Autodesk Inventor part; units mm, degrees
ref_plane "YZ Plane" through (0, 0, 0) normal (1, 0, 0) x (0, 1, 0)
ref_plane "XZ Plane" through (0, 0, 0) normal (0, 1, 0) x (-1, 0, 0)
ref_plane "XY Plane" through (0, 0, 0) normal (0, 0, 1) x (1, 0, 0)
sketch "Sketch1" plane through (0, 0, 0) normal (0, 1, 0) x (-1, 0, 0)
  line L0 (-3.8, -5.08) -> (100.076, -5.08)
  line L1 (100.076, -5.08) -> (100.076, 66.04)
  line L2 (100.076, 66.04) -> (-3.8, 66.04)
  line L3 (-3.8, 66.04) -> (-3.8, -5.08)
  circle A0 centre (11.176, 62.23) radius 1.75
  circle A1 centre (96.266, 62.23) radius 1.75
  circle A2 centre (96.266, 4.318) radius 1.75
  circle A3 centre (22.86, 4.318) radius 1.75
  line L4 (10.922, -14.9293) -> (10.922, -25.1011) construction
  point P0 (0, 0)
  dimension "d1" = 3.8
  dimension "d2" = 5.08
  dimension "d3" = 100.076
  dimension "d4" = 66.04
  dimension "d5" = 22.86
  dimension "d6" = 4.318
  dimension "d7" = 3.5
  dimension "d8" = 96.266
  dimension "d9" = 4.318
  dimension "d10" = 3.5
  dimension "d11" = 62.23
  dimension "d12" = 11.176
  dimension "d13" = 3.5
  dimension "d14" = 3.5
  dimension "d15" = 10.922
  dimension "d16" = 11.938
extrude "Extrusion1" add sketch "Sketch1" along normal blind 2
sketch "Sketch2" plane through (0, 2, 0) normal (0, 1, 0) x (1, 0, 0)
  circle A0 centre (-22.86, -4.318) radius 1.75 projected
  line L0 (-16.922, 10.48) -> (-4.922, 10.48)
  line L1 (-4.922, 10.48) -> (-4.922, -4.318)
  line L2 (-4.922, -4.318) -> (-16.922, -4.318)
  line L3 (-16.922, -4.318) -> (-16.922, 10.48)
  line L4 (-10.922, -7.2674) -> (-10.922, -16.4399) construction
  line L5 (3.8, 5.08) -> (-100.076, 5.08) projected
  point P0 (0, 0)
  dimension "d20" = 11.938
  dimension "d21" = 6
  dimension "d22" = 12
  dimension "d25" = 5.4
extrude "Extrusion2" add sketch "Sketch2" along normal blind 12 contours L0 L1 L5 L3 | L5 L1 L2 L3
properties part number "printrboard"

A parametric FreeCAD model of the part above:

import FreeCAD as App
import Part
import Sketcher

doc = App.newDocument("Part")
params = doc.addObject("Spreadsheet::Sheet", "Params")
for row, (alias, value) in enumerate([
    ("sketch1_diameter", "3.5 mm"),
    ("pad1_length", "2 mm"),
    ("sketch2_width", "12 mm"),
    ("pad2_length", "12 mm"),
], start=1):
    params.set(f"A{row}", alias)
    params.set(f"B{row}", "=" + value)
    params.setAlias(f"B{row}", alias)

body = doc.addObject("PartDesign::Body", "Body")

# Sketch on XZ plane
sketch1 = body.newObject("Sketcher::SketchObject", "Sketch")
sketch1.AttachmentSupport = (doc.getObject("XZ_Plane"), [""])
sketch1.MapMode = "FlatFace"
sketch1.addGeometry([
    Part.LineSegment(App.Vector(3.8, 66, 0), App.Vector(3.8, -5.1, 0)),  # 0
    Part.LineSegment(App.Vector(3.8, -5.1, 0), App.Vector(-100.1, -5.1, 0)),  # 1
    Part.LineSegment(App.Vector(-100.1, -5.1, 0), App.Vector(-100.1, 66, 0)),  # 2
    Part.LineSegment(App.Vector(-100.1, 66, 0), App.Vector(3.8, 66, 0)),  # 3
    Part.Circle(App.Vector(-22.9, 4.3, 0), App.Vector(0, 0, 1), 1.8),  # 4
    Part.Circle(App.Vector(-96.3, 4.3, 0), App.Vector(0, 0, 1), 1.8),  # 5
    Part.Circle(App.Vector(-11.2, 62.2, 0), App.Vector(0, 0, 1), 1.8),  # 6
    Part.Circle(App.Vector(-96.3, 62.2, 0), App.Vector(0, 0, 1), 1.8),  # 7
], False)
sketch1.addConstraint([
    Sketcher.Constraint("Coincident", 0, 2, 1, 1),
    Sketcher.Constraint("Coincident", 1, 2, 2, 1),
    Sketcher.Constraint("Coincident", 2, 2, 3, 1),
    Sketcher.Constraint("Coincident", 3, 2, 0, 1),
    Sketcher.Constraint("Vertical", 0),
    Sketcher.Constraint("Horizontal", 1),
    Sketcher.Constraint("Vertical", 2),
    Sketcher.Constraint("Horizontal", 3),
    Sketcher.Constraint("Equal", 4, 5),
    Sketcher.Constraint("Equal", 5, 6),
    Sketcher.Constraint("Equal", 6, 7),
    Sketcher.Constraint("Horizontal", 4, 3, 5, 3),
    Sketcher.Constraint("Horizontal", 6, 3, 7, 3),
    Sketcher.Constraint("Vertical", 5, 3, 7, 3),
    Sketcher.Constraint("Diameter", 4, 3.5),
    Sketcher.Constraint("DistanceX", -1, 1, 0, 2, 3.8),
    Sketcher.Constraint("DistanceX", 4, 3, -1, 1, 22.86),
    Sketcher.Constraint("DistanceY", -1, 1, 6, 3, 62.23),
    Sketcher.Constraint("DistanceY", 0, 2, -1, 1, 5.08),
    Sketcher.Constraint("DistanceY", -1, 1, 2, 2, 66.04),
    Sketcher.Constraint("DistanceY", -1, 1, 4, 3, 4.318),
    Sketcher.Constraint("DistanceX", 5, 3, -1, 1, 96.266),
    Sketcher.Constraint("DistanceX", 6, 3, -1, 1, 11.176),
    Sketcher.Constraint("DistanceX", 1, 2, -1, 1, 100.076),
])
sketch1.setExpression("Constraints[14]", "Params.sketch1_diameter")
pad1 = body.newObject("PartDesign::Pad", "Pad")
pad1.Profile = sketch1
pad1.setExpression("Length", "Params.pad1_length")
pad1.Reversed = True

# Sketch on XZ plane
sketch2 = body.newObject("Sketcher::SketchObject", "Sketch001")
sketch2.AttachmentSupport = (doc.getObject("XZ_Plane"), [""])
sketch2.MapMode = "FlatFace"
sketch2.AttachmentOffset = App.Placement(App.Vector(0, 0, -2), App.Rotation())
sketch2.addGeometry([
    Part.LineSegment(App.Vector(-5, -10, 0), App.Vector(-17, -10, 0)),
    Part.LineSegment(App.Vector(-17, -10, 0), App.Vector(-17, 4, 0)),
    Part.LineSegment(App.Vector(-17, 4, 0), App.Vector(-5, 4, 0)),
    Part.LineSegment(App.Vector(-5, 4, 0), App.Vector(-5, -10, 0)),
], False)
sketch2.addConstraint([
    Sketcher.Constraint("Coincident", 0, 2, 1, 1),
    Sketcher.Constraint("Coincident", 1, 2, 2, 1),
    Sketcher.Constraint("Coincident", 2, 2, 3, 1),
    Sketcher.Constraint("Coincident", 3, 2, 0, 1),
    Sketcher.Constraint("Horizontal", 0),
    Sketcher.Constraint("Vertical", 1),
    Sketcher.Constraint("Horizontal", 2),
    Sketcher.Constraint("Vertical", 3),
    Sketcher.Constraint("DistanceX", 0, 2, 0, 1, 12.0),
    Sketcher.Constraint("DistanceY", 1, 1, 1, 2, 14.798),
    Sketcher.Constraint("DistanceY", 0, 2, -1, 1, 10.48),
    Sketcher.Constraint("DistanceX", 0, 2, -1, 1, 16.922),
])
sketch2.setExpression("Constraints[8]", "Params.sketch2_width")
pad2 = body.newObject("PartDesign::Pad", "Pad001")
pad2.Profile = sketch2
pad2.setExpression("Length", "Params.pad2_length")
pad2.Reversed = True

doc.recompute()
